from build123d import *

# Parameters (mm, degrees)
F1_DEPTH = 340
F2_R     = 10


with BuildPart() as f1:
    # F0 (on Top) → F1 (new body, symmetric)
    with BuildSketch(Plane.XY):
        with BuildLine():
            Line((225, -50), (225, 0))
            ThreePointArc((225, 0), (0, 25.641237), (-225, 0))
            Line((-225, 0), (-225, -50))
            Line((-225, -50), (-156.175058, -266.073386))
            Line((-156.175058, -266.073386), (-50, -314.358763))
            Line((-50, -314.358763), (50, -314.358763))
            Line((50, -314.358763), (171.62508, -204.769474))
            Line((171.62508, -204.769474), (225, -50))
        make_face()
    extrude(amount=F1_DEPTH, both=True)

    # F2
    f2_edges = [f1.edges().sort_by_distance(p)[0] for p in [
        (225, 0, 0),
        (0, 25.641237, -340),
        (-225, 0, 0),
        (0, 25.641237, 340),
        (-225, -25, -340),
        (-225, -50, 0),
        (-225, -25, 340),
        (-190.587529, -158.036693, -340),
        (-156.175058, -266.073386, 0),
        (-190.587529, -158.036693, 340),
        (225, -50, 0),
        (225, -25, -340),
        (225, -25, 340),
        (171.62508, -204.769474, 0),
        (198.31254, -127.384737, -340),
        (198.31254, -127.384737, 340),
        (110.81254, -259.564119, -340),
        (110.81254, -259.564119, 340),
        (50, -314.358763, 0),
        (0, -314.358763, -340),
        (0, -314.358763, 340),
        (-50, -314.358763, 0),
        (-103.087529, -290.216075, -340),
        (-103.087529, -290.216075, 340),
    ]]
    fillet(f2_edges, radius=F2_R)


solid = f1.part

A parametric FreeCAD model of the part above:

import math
import FreeCAD as App
import Part
import Sketcher
from FreeCAD import Vector
Q = App.Units.Quantity

doc = App.newDocument("Part")
params = doc.addObject("Spreadsheet::Sheet", "Params")
for row, (alias, value) in enumerate([
    ("sketch1_width", "100 mm"),
    ("sketch1_height", "50 mm"),
    ("pad1_length", "680 mm"),
    ("fillet_radius", "10 mm"),
], start=1):
    params.set(f"A{row}", alias)
    params.set(f"B{row}", "=" + value)
    params.setAlias(f"B{row}", alias)

body = doc.addObject("PartDesign::Body", "Body")

sketch1 = doc.addObject("Sketcher::SketchObject", "Sketch")
body.addObject(sketch1)
sketch1.AttachmentSupport = (doc.XY_Plane, [""])
sketch1.MapMode = "FlatFace"
sketch1.addGeometry(Part.LineSegment(Vector(225, -50, 0), Vector(225, 0, 0)), False)
sketch1.addGeometry(Part.ArcOfCircle(Part.Circle(Vector(0, -974.358744, 0), Vector(0, 0, 1), 999.999981), math.radians(76.997122), math.radians(103.002878)), False)
sketch1.addGeometry(Part.LineSegment(Vector(-225, 0, 0), Vector(-225, -50, 0)), False)
sketch1.addGeometry(Part.LineSegment(Vector(-225, -50, 0), Vector(-156.175058, -266.073386, 0)), False)
sketch1.addGeometry(Part.LineSegment(Vector(-156.175058, -266.073386, 0), Vector(-50, -314.358763, 0)), False)
sketch1.addGeometry(Part.LineSegment(Vector(-50, -314.358763, 0), Vector(50, -314.358763, 0)), False)
sketch1.addGeometry(Part.LineSegment(Vector(50, -314.358763, 0), Vector(171.62508, -204.769474, 0)), False)
sketch1.addGeometry(Part.LineSegment(Vector(171.62508, -204.769474, 0), Vector(225, -50, 0)), False)
sketch1.addConstraint(Sketcher.Constraint("Coincident", 0, 2, 1, 1))
sketch1.addConstraint(Sketcher.Constraint("Coincident", 1, 2, 2, 1))
sketch1.addConstraint(Sketcher.Constraint("Coincident", 2, 2, 3, 1))
sketch1.addConstraint(Sketcher.Constraint("Coincident", 3, 2, 4, 1))
sketch1.addConstraint(Sketcher.Constraint("Coincident", 4, 2, 5, 1))
sketch1.addConstraint(Sketcher.Constraint("Coincident", 5, 2, 6, 1))
sketch1.addConstraint(Sketcher.Constraint("Coincident", 6, 2, 7, 1))
sketch1.addConstraint(Sketcher.Constraint("Coincident", 7, 2, 0, 1))
sketch1.addConstraint(Sketcher.Constraint("Vertical", 0))
sketch1.addConstraint(Sketcher.Constraint("Vertical", 2))
sketch1.addConstraint(Sketcher.Constraint("Horizontal", 5))
sketch1.addConstraint(Sketcher.Constraint("Symmetric", 2, 2, 7, 2, -2))
sketch1.addConstraint(Sketcher.Constraint("PointOnObject", 1, 3, -2))
sketch1.addConstraint(Sketcher.Constraint("PointOnObject", 0, 2, -1))
sketch1.addConstraint(Sketcher.Constraint("Equal", 6, 7))
sketch1.addConstraint(Sketcher.Constraint("DistanceX", 5, 1, 5, 2, Q("100 mm")))
sketch1.addConstraint(Sketcher.Constraint("DistanceY", 0, 1, 0, 2, Q("50 mm")))
sketch1.addConstraint(Sketcher.Constraint("DistanceX", -1, 1, 0, 2, Q("225 mm")))
sketch1.addConstraint(Sketcher.Constraint("DistanceX", 4, 2, -1, 1, Q("50 mm")))
sketch1.addConstraint(Sketcher.Constraint("Radius", 1, Q("999.999981 mm")))
sketch1.addConstraint(Sketcher.Constraint("DistanceX", 3, 2, -1, 1, Q("156.175058 mm")))
sketch1.addConstraint(Sketcher.Constraint("DistanceX", -1, 1, 6, 2, Q("171.62508 mm")))
sketch1.addConstraint(Sketcher.Constraint("DistanceY", 1, 3, 3, 2, Q("708.285358 mm")))
sketch1.addConstraint(Sketcher.Constraint("DistanceY", 1, 3, 4, 2, Q("659.999981 mm")))
sketch1.setExpression("Constraints[15]", "Params.sketch1_width")
sketch1.setExpression("Constraints[16]", "Params.sketch1_height")
pad1 = doc.addObject("PartDesign::Pad", "Pad")
body.addObject(pad1)
pad1.Profile = sketch1
pad1.setExpression("Length", "Params.pad1_length")
pad1.Midplane = True
doc.recompute()

fillet = doc.addObject("PartDesign::Fillet", "Fillet")
body.addObject(fillet)
fillet.Base = (pad1, ["Edge1"])
fillet.UseAllEdges = True
fillet.setExpression("Radius", "Params.fillet_radius")

doc.recompute()
